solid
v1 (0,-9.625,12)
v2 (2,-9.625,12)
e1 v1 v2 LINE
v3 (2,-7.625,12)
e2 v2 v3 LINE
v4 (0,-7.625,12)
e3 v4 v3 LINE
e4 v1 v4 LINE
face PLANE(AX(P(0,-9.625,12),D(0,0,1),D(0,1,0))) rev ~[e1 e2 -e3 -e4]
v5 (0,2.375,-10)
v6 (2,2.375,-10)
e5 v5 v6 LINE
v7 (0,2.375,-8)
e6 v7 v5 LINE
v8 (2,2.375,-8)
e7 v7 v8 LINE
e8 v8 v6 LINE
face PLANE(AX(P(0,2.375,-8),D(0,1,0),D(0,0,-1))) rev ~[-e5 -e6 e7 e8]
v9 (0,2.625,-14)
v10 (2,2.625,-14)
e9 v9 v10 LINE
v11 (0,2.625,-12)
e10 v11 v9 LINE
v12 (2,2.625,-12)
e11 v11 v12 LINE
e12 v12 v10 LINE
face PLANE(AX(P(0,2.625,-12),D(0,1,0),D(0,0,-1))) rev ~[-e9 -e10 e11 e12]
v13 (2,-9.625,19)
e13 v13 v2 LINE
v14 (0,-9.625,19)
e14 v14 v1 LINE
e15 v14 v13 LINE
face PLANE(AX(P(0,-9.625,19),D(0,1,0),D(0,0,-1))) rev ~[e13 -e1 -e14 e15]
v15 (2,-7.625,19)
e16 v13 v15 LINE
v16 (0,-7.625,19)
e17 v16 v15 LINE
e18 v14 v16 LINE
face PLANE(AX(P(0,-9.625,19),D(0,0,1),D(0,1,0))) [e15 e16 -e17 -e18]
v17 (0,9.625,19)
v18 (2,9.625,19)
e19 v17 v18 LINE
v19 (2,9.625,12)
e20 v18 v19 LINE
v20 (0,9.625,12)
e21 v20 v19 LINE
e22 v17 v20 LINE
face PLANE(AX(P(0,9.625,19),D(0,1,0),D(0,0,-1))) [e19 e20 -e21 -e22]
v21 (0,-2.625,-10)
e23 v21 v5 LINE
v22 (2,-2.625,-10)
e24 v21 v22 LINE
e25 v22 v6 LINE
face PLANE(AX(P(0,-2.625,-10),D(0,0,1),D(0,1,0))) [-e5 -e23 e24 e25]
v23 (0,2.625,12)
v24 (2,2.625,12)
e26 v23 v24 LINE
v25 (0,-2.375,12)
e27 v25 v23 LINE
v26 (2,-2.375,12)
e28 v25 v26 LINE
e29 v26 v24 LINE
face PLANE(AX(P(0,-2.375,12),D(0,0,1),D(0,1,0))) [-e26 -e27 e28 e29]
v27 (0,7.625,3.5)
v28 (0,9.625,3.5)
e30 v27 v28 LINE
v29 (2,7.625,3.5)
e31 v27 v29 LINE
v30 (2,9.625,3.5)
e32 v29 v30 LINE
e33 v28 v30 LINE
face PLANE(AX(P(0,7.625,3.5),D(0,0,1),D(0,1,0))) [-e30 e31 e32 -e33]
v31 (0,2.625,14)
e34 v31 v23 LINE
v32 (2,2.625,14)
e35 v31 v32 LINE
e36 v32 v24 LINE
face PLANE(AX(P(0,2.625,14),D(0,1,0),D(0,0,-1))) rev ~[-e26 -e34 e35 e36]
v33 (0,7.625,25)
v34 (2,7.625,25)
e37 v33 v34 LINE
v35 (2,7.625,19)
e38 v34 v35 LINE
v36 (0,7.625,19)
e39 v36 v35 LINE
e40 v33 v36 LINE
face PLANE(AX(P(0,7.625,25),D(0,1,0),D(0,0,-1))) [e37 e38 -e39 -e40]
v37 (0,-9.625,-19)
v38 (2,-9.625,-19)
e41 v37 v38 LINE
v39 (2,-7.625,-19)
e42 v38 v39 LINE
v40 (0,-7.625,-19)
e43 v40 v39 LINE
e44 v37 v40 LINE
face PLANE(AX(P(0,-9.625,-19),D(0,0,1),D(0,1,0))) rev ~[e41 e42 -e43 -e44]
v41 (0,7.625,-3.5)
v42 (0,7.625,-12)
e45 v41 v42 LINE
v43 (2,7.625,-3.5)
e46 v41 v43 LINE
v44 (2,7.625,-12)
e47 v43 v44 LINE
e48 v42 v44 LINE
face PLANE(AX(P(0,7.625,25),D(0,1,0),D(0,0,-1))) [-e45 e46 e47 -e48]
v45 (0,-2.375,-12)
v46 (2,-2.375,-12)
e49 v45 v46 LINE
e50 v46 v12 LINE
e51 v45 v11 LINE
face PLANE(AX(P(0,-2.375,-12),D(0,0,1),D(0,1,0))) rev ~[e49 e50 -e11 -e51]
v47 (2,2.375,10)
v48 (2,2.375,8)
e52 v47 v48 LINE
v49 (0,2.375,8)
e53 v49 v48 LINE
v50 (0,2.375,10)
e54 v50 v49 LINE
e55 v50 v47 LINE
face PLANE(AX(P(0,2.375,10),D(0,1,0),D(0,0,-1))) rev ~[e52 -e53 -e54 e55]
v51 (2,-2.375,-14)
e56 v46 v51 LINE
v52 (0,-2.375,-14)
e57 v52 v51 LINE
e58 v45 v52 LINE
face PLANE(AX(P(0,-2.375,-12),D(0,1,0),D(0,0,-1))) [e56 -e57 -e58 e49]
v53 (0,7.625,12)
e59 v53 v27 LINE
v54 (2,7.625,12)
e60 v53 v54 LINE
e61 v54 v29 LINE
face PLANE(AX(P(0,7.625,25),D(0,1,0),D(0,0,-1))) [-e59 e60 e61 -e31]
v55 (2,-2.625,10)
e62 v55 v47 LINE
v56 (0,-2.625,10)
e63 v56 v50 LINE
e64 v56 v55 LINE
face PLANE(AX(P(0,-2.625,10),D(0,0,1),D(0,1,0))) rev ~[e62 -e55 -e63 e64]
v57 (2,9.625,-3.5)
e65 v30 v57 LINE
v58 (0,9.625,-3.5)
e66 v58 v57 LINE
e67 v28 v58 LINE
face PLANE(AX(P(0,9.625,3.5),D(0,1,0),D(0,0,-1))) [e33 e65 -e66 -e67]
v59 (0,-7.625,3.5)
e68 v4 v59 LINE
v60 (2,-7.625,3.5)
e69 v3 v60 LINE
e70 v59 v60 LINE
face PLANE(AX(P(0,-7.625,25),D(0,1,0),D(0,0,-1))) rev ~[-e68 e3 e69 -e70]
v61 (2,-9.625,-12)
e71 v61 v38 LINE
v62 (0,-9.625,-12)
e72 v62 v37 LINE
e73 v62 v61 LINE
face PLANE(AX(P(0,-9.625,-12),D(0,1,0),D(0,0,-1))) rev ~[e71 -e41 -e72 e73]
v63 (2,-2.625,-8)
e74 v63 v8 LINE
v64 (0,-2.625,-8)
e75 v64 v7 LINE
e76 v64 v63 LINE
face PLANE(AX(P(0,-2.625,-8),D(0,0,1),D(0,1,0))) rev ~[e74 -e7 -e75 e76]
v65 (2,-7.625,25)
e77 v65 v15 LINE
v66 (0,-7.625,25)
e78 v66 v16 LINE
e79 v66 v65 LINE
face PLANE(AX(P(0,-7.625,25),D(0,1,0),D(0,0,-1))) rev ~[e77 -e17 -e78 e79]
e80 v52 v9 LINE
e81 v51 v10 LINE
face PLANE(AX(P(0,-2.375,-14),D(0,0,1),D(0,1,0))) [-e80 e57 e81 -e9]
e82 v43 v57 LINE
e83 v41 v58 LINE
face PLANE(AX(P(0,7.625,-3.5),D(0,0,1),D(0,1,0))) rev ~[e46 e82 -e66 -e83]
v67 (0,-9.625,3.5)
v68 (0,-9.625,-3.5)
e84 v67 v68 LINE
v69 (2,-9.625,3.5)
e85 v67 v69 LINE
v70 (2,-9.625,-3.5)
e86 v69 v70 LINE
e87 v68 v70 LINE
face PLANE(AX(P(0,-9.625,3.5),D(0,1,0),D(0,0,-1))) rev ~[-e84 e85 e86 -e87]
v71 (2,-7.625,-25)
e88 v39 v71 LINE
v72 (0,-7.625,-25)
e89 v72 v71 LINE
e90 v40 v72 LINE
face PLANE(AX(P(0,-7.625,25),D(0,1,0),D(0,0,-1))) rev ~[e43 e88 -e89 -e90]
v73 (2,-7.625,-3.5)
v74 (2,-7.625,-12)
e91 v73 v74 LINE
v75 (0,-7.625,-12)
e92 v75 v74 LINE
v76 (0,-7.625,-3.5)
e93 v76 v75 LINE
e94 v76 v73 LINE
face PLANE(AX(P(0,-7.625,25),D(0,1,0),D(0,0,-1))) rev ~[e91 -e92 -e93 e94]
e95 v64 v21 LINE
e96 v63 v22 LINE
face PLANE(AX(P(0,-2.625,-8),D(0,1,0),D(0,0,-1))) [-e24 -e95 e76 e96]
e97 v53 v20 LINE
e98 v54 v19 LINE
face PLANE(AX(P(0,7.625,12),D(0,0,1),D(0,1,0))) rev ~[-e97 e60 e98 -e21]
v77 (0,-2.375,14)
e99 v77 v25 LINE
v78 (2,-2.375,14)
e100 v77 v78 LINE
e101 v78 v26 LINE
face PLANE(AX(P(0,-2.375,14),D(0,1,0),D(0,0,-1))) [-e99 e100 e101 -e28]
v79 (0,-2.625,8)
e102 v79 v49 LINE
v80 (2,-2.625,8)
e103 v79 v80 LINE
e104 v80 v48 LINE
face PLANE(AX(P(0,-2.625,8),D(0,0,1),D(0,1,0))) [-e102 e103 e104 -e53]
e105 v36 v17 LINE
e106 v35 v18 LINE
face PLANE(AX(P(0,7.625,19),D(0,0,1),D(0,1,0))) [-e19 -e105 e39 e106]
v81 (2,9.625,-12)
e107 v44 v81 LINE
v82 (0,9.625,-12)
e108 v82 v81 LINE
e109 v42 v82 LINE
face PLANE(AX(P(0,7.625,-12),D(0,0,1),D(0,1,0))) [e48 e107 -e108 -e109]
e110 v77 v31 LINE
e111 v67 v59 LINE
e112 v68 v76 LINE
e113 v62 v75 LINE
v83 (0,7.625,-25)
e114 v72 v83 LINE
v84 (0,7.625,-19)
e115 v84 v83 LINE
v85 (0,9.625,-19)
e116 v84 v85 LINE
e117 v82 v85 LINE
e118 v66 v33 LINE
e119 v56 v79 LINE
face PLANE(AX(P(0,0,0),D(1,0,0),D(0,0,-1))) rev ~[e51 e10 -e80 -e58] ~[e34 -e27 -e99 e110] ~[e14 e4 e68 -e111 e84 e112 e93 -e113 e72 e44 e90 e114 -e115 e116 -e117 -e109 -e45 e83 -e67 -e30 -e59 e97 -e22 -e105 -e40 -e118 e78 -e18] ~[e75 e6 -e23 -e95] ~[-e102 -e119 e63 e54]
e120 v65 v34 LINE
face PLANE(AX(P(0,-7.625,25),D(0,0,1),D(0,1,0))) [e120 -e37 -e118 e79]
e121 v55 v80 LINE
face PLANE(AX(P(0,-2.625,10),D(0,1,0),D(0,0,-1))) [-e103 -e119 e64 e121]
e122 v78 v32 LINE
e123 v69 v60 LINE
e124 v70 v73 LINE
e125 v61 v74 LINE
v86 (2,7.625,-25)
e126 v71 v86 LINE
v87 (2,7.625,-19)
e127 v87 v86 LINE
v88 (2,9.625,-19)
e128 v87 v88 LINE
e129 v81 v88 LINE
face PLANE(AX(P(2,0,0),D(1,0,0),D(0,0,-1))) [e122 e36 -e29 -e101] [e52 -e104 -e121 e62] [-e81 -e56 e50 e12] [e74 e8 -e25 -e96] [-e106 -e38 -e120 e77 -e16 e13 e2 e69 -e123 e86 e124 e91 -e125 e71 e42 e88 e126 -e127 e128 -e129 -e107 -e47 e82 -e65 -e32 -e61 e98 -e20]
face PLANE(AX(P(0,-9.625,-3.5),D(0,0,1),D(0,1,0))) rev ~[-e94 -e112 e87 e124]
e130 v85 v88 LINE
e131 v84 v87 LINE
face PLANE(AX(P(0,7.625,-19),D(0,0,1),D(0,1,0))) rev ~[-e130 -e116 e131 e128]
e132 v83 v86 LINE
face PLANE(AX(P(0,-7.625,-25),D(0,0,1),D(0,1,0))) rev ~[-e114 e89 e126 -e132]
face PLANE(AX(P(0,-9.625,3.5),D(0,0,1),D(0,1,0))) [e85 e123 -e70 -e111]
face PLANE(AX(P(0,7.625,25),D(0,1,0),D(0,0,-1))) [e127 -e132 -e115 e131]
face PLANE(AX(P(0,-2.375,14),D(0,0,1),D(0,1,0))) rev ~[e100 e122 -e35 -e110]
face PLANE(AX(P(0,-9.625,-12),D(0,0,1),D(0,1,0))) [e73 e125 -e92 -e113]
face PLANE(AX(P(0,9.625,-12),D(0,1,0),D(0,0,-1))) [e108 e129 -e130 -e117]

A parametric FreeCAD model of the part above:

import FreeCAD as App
import Part
import Sketcher
Q = App.Units.Quantity

doc = App.newDocument("Part")
params = doc.addObject("Spreadsheet::Sheet", "Params")
for row, (alias, value) in enumerate([
    ("sketch1_width", "2 mm"),
    ("sketch1_width2", "5 mm"),
    ("sketch1_height", "6 mm"),
    ("sketch1_height2", "7 mm"),
    ("sketch1_height3", "8.5 mm"),
    ("pad1_length", "2 mm"),
], start=1):
    params.set(f"A{row}", alias)
    params.set(f"B{row}", "=" + value)
    params.setAlias(f"B{row}", alias)

body = doc.addObject("PartDesign::Body", "Body")

# Sketch on YZ plane
sketch1 = body.newObject("Sketcher::SketchObject", "Sketch")
sketch1.AttachmentSupport = (doc.getObject("YZ_Plane"), [""])
sketch1.MapMode = "FlatFace"
sketch1.addGeometry([
    Part.LineSegment(App.Vector(7.6, 25, 0), App.Vector(-7.6, 25, 0)),  # 0
    Part.LineSegment(App.Vector(-7.6, 25, 0), App.Vector(-7.6, 19, 0)),  # 1
    Part.LineSegment(App.Vector(-7.6, 19, 0), App.Vector(-9.6, 19, 0)),  # 2
    Part.LineSegment(App.Vector(-9.6, 19, 0), App.Vector(-9.6, 12, 0)),  # 3
    Part.LineSegment(App.Vector(-9.6, 12, 0), App.Vector(-7.6, 12, 0)),  # 4
    Part.LineSegment(App.Vector(-7.6, 12, 0), App.Vector(-7.6, 3.5, 0)),  # 5
    Part.LineSegment(App.Vector(-7.6, 3.5, 0), App.Vector(-9.6, 3.5, 0)),  # 6
    Part.LineSegment(App.Vector(-9.6, 3.5, 0), App.Vector(-9.6, -3.5, 0)),  # 7
    Part.LineSegment(App.Vector(-9.6, -3.5, 0), App.Vector(-7.6, -3.5, 0)),  # 8
    Part.LineSegment(App.Vector(-7.6, -3.5, 0), App.Vector(-7.6, -12, 0)),  # 9
    Part.LineSegment(App.Vector(-7.6, -12, 0), App.Vector(-9.6, -12, 0)),  # 10
    Part.LineSegment(App.Vector(-9.6, -12, 0), App.Vector(-9.6, -19, 0)),  # 11
    Part.LineSegment(App.Vector(-9.6, -19, 0), App.Vector(-7.6, -19, 0)),  # 12
    Part.LineSegment(App.Vector(-7.6, -19, 0), App.Vector(-7.6, -25, 0)),  # 13
    Part.LineSegment(App.Vector(-7.6, -25, 0), App.Vector(7.6, -25, 0)),  # 14
    Part.LineSegment(App.Vector(7.6, -25, 0), App.Vector(7.6, -19, 0)),  # 15
    Part.LineSegment(App.Vector(7.6, -19, 0), App.Vector(9.6, -19, 0)),  # 16
    Part.LineSegment(App.Vector(9.6, -19, 0), App.Vector(9.6, -12, 0)),  # 17
    Part.LineSegment(App.Vector(9.6, -12, 0), App.Vector(7.6, -12, 0)),  # 18
    Part.LineSegment(App.Vector(7.6, -12, 0), App.Vector(7.6, -3.5, 0)),  # 19
    Part.LineSegment(App.Vector(7.6, -3.5, 0), App.Vector(9.6, -3.5, 0)),  # 20
    Part.LineSegment(App.Vector(9.6, -3.5, 0), App.Vector(9.6, 3.5, 0)),  # 21
    Part.LineSegment(App.Vector(9.6, 3.5, 0), App.Vector(7.6, 3.5, 0)),  # 22
    Part.LineSegment(App.Vector(7.6, 3.5, 0), App.Vector(7.6, 12, 0)),  # 23
    Part.LineSegment(App.Vector(7.6, 12, 0), App.Vector(9.6, 12, 0)),  # 24
    Part.LineSegment(App.Vector(9.6, 12, 0), App.Vector(9.6, 19, 0)),  # 25
    Part.LineSegment(App.Vector(9.6, 19, 0), App.Vector(7.6, 19, 0)),  # 26
    Part.LineSegment(App.Vector(7.6, 19, 0), App.Vector(7.6, 25, 0)),  # 27
    Part.LineSegment(App.Vector(-2.6, 8, 0), App.Vector(-2.6, 10, 0)),  # 28
    Part.LineSegment(App.Vector(-2.6, 10, 0), App.Vector(2.4, 10, 0)),  # 29
    Part.LineSegment(App.Vector(2.4, 10, 0), App.Vector(2.4, 8, 0)),  # 30
    Part.LineSegment(App.Vector(2.4, 8, 0), App.Vector(-2.6, 8, 0)),  # 31
    Part.LineSegment(App.Vector(-2.6, -10, 0), App.Vector(-2.6, -8, 0)),  # 32
    Part.LineSegment(App.Vector(-2.6, -8, 0), App.Vector(2.4, -8, 0)),  # 33
    Part.LineSegment(App.Vector(2.4, -8, 0), App.Vector(2.4, -10, 0)),  # 34
    Part.LineSegment(App.Vector(2.4, -10, 0), App.Vector(-2.6, -10, 0)),  # 35
    Part.LineSegment(App.Vector(-2.4, 12, 0), App.Vector(-2.4, 14, 0)),  # 36
    Part.LineSegment(App.Vector(-2.4, 14, 0), App.Vector(2.6, 14, 0)),  # 37
    Part.LineSegment(App.Vector(2.6, 14, 0), App.Vector(2.6, 12, 0)),  # 38
    Part.LineSegment(App.Vector(2.6, 12, 0), App.Vector(-2.4, 12, 0)),  # 39
    Part.LineSegment(App.Vector(-2.4, -14, 0), App.Vector(-2.4, -12, 0)),  # 40
    Part.LineSegment(App.Vector(-2.4, -12, 0), App.Vector(2.6, -12, 0)),  # 41
    Part.LineSegment(App.Vector(2.6, -12, 0), App.Vector(2.6, -14, 0)),  # 42
    Part.LineSegment(App.Vector(2.6, -14, 0), App.Vector(-2.4, -14, 0)),  # 43
], False)
sketch1.addConstraint([
    Sketcher.Constraint("Coincident", 0, 2, 1, 1),
    Sketcher.Constraint("Coincident", 1, 2, 2, 1),
    Sketcher.Constraint("Coincident", 2, 2, 3, 1),
    Sketcher.Constraint("Coincident", 3, 2, 4, 1),
    Sketcher.Constraint("Coincident", 4, 2, 5, 1),
    Sketcher.Constraint("Coincident", 5, 2, 6, 1),
    Sketcher.Constraint("Coincident", 6, 2, 7, 1),
    Sketcher.Constraint("Coincident", 7, 2, 8, 1),
    Sketcher.Constraint("Coincident", 8, 2, 9, 1),
    Sketcher.Constraint("Coincident", 9, 2, 10, 1),
    Sketcher.Constraint("Coincident", 10, 2, 11, 1),
    Sketcher.Constraint("Coincident", 11, 2, 12, 1),
    Sketcher.Constraint("Coincident", 12, 2, 13, 1),
    Sketcher.Constraint("Coincident", 13, 2, 14, 1),
    Sketcher.Constraint("Coincident", 14, 2, 15, 1),
    Sketcher.Constraint("Coincident", 15, 2, 16, 1),
    Sketcher.Constraint("Coincident", 16, 2, 17, 1),
    Sketcher.Constraint("Coincident", 17, 2, 18, 1),
    Sketcher.Constraint("Coincident", 18, 2, 19, 1),
    Sketcher.Constraint("Coincident", 19, 2, 20, 1),
    Sketcher.Constraint("Coincident", 20, 2, 21, 1),
    Sketcher.Constraint("Coincident", 21, 2, 22, 1),
    Sketcher.Constraint("Coincident", 22, 2, 23, 1),
    Sketcher.Constraint("Coincident", 23, 2, 24, 1),
    Sketcher.Constraint("Coincident", 24, 2, 25, 1),
    Sketcher.Constraint("Coincident", 25, 2, 26, 1),
    Sketcher.Constraint("Coincident", 26, 2, 27, 1),
    Sketcher.Constraint("Coincident", 27, 2, 0, 1),
    Sketcher.Constraint("Coincident", 28, 2, 29, 1),
    Sketcher.Constraint("Coincident", 29, 2, 30, 1),
    Sketcher.Constraint("Coincident", 30, 2, 31, 1),
    Sketcher.Constraint("Coincident", 31, 2, 28, 1),
    Sketcher.Constraint("Coincident", 32, 2, 33, 1),
    Sketcher.Constraint("Coincident", 33, 2, 34, 1),
    Sketcher.Constraint("Coincident", 34, 2, 35, 1),
    Sketcher.Constraint("Coincident", 35, 2, 32, 1),
    Sketcher.Constraint("Coincident", 36, 2, 37, 1),
    Sketcher.Constraint("Coincident", 37, 2, 38, 1),
    Sketcher.Constraint("Coincident", 38, 2, 39, 1),
    Sketcher.Constraint("Coincident", 39, 2, 36, 1),
    Sketcher.Constraint("Coincident", 40, 2, 41, 1),
    Sketcher.Constraint("Coincident", 41, 2, 42, 1),
    Sketcher.Constraint("Coincident", 42, 2, 43, 1),
    Sketcher.Constraint("Coincident", 43, 2, 40, 1),
    Sketcher.Constraint("Horizontal", 0),
    Sketcher.Constraint("Vertical", 1),
    Sketcher.Constraint("Horizontal", 2),
    Sketcher.Constraint("Vertical", 3),
    Sketcher.Constraint("Horizontal", 4),
    Sketcher.Constraint("Vertical", 5),
    Sketcher.Constraint("Horizontal", 6),
    Sketcher.Constraint("Vertical", 7),
    Sketcher.Constraint("Horizontal", 8),
    Sketcher.Constraint("Vertical", 9),
    Sketcher.Constraint("Horizontal", 10),
    Sketcher.Constraint("Vertical", 11),
    Sketcher.Constraint("Horizontal", 12),
    Sketcher.Constraint("Vertical", 13),
    Sketcher.Constraint("Horizontal", 14),
    Sketcher.Constraint("Vertical", 15),
    Sketcher.Constraint("Horizontal", 16),
    Sketcher.Constraint("Vertical", 17),
    Sketcher.Constraint("Horizontal", 18),
    Sketcher.Constraint("Vertical", 19),
    Sketcher.Constraint("Horizontal", 20),
    Sketcher.Constraint("Vertical", 21),
    Sketcher.Constraint("Horizontal", 22),
    Sketcher.Constraint("Vertical", 23),
    Sketcher.Constraint("Horizontal", 24),
    Sketcher.Constraint("Vertical", 25),
    Sketcher.Constraint("Horizontal", 26),
    Sketcher.Constraint("Vertical", 27),
    Sketcher.Constraint("Vertical", 28),
    Sketcher.Constraint("Horizontal", 29),
    Sketcher.Constraint("Vertical", 30),
    Sketcher.Constraint("Horizontal", 31),
    Sketcher.Constraint("Vertical", 32),
    Sketcher.Constraint("Horizontal", 33),
    Sketcher.Constraint("Vertical", 34),
    Sketcher.Constraint("Horizontal", 35),
    Sketcher.Constraint("Vertical", 36),
    Sketcher.Constraint("Horizontal", 37),
    Sketcher.Constraint("Vertical", 38),
    Sketcher.Constraint("Horizontal", 39),
    Sketcher.Constraint("Vertical", 40),
    Sketcher.Constraint("Horizontal", 41),
    Sketcher.Constraint("Vertical", 42),
    Sketcher.Constraint("Horizontal", 43),
    Sketcher.Constraint("Symmetric", 0, 2, 14, 2, -1, 1),
    Sketcher.Constraint("Symmetric", 2, 2, 16, 2, -1, 1),
    Sketcher.Constraint("Symmetric", 4, 2, 18, 2, -1, 1),
    Sketcher.Constraint("Symmetric", 6, 2, 20, 2, -1, 1),
    Sketcher.Constraint("Symmetric", 8, 2, 22, 2, -1, 1),
    Sketcher.Constraint("Symmetric", 10, 2, 24, 2, -1, 1),
    Sketcher.Constraint("Symmetric", 12, 2, 26, 2, -1, 1),
    Sketcher.Constraint("Symmetric", 12, 2, 15, 2, -2),
    Sketcher.Constraint("Symmetric", 10, 2, 17, 2, -2),
    Sketcher.Constraint("Symmetric", 8, 2, 19, 2, -2),
    Sketcher.Constraint("Symmetric", 31, 2, 32, 2, -1),
    Sketcher.Constraint("Symmetric", 29, 2, 34, 2, -1),
    Sketcher.Constraint("Symmetric", 39, 2, 40, 2, -1),
    Sketcher.Constraint("Symmetric", 37, 2, 42, 2, -1),
    Sketcher.Constraint("Horizontal", 24, 2, 38, 2),
    Sketcher.Constraint("Vertical", 1, 2, 4, 2),
    Sketcher.Constraint("Vertical", 3, 2, 6, 2),
    Sketcher.Constraint("Equal", 35, 37),
    Sketcher.Constraint("Equal", 3, 7),
    Sketcher.Constraint("Equal", 26, 28),
    Sketcher.Constraint("Equal", 34, 36),
    Sketcher.Constraint("DistanceX", 2, 2, 2, 1, Q("2 mm")),
    Sketcher.Constraint("DistanceX", 29, 1, 29, 2, Q("5 mm")),
    Sketcher.Constraint("DistanceY", 1, 2, 1, 1, Q("6 mm")),
    Sketcher.Constraint("DistanceY", 3, 2, 3, 1, Q("7 mm")),
    Sketcher.Constraint("DistanceY", 5, 2, 5, 1, Q("8.5 mm")),
    Sketcher.Constraint("DistanceY", -1, 1, 28, 2, Q("10 mm")),
    Sketcher.Constraint("DistanceX", 4, 2, 28, 2, Q("5 mm")),
    Sketcher.Constraint("DistanceX", 37, 2, 23, 2, Q("5 mm")),
    Sketcher.Constraint("DistanceX", 0, 2, 0, 1, Q("15.25 mm")),
])
sketch1.setExpression("Constraints[109]", "Params.sketch1_width")
sketch1.setExpression("Constraints[110]", "Params.sketch1_width2")
sketch1.setExpression("Constraints[111]", "Params.sketch1_height")
sketch1.setExpression("Constraints[112]", "Params.sketch1_height2")
sketch1.setExpression("Constraints[113]", "Params.sketch1_height3")
pad1 = body.newObject("PartDesign::Pad", "Pad")
pad1.Profile = sketch1
pad1.setExpression("Length", "Params.pad1_length")

doc.recompute()
